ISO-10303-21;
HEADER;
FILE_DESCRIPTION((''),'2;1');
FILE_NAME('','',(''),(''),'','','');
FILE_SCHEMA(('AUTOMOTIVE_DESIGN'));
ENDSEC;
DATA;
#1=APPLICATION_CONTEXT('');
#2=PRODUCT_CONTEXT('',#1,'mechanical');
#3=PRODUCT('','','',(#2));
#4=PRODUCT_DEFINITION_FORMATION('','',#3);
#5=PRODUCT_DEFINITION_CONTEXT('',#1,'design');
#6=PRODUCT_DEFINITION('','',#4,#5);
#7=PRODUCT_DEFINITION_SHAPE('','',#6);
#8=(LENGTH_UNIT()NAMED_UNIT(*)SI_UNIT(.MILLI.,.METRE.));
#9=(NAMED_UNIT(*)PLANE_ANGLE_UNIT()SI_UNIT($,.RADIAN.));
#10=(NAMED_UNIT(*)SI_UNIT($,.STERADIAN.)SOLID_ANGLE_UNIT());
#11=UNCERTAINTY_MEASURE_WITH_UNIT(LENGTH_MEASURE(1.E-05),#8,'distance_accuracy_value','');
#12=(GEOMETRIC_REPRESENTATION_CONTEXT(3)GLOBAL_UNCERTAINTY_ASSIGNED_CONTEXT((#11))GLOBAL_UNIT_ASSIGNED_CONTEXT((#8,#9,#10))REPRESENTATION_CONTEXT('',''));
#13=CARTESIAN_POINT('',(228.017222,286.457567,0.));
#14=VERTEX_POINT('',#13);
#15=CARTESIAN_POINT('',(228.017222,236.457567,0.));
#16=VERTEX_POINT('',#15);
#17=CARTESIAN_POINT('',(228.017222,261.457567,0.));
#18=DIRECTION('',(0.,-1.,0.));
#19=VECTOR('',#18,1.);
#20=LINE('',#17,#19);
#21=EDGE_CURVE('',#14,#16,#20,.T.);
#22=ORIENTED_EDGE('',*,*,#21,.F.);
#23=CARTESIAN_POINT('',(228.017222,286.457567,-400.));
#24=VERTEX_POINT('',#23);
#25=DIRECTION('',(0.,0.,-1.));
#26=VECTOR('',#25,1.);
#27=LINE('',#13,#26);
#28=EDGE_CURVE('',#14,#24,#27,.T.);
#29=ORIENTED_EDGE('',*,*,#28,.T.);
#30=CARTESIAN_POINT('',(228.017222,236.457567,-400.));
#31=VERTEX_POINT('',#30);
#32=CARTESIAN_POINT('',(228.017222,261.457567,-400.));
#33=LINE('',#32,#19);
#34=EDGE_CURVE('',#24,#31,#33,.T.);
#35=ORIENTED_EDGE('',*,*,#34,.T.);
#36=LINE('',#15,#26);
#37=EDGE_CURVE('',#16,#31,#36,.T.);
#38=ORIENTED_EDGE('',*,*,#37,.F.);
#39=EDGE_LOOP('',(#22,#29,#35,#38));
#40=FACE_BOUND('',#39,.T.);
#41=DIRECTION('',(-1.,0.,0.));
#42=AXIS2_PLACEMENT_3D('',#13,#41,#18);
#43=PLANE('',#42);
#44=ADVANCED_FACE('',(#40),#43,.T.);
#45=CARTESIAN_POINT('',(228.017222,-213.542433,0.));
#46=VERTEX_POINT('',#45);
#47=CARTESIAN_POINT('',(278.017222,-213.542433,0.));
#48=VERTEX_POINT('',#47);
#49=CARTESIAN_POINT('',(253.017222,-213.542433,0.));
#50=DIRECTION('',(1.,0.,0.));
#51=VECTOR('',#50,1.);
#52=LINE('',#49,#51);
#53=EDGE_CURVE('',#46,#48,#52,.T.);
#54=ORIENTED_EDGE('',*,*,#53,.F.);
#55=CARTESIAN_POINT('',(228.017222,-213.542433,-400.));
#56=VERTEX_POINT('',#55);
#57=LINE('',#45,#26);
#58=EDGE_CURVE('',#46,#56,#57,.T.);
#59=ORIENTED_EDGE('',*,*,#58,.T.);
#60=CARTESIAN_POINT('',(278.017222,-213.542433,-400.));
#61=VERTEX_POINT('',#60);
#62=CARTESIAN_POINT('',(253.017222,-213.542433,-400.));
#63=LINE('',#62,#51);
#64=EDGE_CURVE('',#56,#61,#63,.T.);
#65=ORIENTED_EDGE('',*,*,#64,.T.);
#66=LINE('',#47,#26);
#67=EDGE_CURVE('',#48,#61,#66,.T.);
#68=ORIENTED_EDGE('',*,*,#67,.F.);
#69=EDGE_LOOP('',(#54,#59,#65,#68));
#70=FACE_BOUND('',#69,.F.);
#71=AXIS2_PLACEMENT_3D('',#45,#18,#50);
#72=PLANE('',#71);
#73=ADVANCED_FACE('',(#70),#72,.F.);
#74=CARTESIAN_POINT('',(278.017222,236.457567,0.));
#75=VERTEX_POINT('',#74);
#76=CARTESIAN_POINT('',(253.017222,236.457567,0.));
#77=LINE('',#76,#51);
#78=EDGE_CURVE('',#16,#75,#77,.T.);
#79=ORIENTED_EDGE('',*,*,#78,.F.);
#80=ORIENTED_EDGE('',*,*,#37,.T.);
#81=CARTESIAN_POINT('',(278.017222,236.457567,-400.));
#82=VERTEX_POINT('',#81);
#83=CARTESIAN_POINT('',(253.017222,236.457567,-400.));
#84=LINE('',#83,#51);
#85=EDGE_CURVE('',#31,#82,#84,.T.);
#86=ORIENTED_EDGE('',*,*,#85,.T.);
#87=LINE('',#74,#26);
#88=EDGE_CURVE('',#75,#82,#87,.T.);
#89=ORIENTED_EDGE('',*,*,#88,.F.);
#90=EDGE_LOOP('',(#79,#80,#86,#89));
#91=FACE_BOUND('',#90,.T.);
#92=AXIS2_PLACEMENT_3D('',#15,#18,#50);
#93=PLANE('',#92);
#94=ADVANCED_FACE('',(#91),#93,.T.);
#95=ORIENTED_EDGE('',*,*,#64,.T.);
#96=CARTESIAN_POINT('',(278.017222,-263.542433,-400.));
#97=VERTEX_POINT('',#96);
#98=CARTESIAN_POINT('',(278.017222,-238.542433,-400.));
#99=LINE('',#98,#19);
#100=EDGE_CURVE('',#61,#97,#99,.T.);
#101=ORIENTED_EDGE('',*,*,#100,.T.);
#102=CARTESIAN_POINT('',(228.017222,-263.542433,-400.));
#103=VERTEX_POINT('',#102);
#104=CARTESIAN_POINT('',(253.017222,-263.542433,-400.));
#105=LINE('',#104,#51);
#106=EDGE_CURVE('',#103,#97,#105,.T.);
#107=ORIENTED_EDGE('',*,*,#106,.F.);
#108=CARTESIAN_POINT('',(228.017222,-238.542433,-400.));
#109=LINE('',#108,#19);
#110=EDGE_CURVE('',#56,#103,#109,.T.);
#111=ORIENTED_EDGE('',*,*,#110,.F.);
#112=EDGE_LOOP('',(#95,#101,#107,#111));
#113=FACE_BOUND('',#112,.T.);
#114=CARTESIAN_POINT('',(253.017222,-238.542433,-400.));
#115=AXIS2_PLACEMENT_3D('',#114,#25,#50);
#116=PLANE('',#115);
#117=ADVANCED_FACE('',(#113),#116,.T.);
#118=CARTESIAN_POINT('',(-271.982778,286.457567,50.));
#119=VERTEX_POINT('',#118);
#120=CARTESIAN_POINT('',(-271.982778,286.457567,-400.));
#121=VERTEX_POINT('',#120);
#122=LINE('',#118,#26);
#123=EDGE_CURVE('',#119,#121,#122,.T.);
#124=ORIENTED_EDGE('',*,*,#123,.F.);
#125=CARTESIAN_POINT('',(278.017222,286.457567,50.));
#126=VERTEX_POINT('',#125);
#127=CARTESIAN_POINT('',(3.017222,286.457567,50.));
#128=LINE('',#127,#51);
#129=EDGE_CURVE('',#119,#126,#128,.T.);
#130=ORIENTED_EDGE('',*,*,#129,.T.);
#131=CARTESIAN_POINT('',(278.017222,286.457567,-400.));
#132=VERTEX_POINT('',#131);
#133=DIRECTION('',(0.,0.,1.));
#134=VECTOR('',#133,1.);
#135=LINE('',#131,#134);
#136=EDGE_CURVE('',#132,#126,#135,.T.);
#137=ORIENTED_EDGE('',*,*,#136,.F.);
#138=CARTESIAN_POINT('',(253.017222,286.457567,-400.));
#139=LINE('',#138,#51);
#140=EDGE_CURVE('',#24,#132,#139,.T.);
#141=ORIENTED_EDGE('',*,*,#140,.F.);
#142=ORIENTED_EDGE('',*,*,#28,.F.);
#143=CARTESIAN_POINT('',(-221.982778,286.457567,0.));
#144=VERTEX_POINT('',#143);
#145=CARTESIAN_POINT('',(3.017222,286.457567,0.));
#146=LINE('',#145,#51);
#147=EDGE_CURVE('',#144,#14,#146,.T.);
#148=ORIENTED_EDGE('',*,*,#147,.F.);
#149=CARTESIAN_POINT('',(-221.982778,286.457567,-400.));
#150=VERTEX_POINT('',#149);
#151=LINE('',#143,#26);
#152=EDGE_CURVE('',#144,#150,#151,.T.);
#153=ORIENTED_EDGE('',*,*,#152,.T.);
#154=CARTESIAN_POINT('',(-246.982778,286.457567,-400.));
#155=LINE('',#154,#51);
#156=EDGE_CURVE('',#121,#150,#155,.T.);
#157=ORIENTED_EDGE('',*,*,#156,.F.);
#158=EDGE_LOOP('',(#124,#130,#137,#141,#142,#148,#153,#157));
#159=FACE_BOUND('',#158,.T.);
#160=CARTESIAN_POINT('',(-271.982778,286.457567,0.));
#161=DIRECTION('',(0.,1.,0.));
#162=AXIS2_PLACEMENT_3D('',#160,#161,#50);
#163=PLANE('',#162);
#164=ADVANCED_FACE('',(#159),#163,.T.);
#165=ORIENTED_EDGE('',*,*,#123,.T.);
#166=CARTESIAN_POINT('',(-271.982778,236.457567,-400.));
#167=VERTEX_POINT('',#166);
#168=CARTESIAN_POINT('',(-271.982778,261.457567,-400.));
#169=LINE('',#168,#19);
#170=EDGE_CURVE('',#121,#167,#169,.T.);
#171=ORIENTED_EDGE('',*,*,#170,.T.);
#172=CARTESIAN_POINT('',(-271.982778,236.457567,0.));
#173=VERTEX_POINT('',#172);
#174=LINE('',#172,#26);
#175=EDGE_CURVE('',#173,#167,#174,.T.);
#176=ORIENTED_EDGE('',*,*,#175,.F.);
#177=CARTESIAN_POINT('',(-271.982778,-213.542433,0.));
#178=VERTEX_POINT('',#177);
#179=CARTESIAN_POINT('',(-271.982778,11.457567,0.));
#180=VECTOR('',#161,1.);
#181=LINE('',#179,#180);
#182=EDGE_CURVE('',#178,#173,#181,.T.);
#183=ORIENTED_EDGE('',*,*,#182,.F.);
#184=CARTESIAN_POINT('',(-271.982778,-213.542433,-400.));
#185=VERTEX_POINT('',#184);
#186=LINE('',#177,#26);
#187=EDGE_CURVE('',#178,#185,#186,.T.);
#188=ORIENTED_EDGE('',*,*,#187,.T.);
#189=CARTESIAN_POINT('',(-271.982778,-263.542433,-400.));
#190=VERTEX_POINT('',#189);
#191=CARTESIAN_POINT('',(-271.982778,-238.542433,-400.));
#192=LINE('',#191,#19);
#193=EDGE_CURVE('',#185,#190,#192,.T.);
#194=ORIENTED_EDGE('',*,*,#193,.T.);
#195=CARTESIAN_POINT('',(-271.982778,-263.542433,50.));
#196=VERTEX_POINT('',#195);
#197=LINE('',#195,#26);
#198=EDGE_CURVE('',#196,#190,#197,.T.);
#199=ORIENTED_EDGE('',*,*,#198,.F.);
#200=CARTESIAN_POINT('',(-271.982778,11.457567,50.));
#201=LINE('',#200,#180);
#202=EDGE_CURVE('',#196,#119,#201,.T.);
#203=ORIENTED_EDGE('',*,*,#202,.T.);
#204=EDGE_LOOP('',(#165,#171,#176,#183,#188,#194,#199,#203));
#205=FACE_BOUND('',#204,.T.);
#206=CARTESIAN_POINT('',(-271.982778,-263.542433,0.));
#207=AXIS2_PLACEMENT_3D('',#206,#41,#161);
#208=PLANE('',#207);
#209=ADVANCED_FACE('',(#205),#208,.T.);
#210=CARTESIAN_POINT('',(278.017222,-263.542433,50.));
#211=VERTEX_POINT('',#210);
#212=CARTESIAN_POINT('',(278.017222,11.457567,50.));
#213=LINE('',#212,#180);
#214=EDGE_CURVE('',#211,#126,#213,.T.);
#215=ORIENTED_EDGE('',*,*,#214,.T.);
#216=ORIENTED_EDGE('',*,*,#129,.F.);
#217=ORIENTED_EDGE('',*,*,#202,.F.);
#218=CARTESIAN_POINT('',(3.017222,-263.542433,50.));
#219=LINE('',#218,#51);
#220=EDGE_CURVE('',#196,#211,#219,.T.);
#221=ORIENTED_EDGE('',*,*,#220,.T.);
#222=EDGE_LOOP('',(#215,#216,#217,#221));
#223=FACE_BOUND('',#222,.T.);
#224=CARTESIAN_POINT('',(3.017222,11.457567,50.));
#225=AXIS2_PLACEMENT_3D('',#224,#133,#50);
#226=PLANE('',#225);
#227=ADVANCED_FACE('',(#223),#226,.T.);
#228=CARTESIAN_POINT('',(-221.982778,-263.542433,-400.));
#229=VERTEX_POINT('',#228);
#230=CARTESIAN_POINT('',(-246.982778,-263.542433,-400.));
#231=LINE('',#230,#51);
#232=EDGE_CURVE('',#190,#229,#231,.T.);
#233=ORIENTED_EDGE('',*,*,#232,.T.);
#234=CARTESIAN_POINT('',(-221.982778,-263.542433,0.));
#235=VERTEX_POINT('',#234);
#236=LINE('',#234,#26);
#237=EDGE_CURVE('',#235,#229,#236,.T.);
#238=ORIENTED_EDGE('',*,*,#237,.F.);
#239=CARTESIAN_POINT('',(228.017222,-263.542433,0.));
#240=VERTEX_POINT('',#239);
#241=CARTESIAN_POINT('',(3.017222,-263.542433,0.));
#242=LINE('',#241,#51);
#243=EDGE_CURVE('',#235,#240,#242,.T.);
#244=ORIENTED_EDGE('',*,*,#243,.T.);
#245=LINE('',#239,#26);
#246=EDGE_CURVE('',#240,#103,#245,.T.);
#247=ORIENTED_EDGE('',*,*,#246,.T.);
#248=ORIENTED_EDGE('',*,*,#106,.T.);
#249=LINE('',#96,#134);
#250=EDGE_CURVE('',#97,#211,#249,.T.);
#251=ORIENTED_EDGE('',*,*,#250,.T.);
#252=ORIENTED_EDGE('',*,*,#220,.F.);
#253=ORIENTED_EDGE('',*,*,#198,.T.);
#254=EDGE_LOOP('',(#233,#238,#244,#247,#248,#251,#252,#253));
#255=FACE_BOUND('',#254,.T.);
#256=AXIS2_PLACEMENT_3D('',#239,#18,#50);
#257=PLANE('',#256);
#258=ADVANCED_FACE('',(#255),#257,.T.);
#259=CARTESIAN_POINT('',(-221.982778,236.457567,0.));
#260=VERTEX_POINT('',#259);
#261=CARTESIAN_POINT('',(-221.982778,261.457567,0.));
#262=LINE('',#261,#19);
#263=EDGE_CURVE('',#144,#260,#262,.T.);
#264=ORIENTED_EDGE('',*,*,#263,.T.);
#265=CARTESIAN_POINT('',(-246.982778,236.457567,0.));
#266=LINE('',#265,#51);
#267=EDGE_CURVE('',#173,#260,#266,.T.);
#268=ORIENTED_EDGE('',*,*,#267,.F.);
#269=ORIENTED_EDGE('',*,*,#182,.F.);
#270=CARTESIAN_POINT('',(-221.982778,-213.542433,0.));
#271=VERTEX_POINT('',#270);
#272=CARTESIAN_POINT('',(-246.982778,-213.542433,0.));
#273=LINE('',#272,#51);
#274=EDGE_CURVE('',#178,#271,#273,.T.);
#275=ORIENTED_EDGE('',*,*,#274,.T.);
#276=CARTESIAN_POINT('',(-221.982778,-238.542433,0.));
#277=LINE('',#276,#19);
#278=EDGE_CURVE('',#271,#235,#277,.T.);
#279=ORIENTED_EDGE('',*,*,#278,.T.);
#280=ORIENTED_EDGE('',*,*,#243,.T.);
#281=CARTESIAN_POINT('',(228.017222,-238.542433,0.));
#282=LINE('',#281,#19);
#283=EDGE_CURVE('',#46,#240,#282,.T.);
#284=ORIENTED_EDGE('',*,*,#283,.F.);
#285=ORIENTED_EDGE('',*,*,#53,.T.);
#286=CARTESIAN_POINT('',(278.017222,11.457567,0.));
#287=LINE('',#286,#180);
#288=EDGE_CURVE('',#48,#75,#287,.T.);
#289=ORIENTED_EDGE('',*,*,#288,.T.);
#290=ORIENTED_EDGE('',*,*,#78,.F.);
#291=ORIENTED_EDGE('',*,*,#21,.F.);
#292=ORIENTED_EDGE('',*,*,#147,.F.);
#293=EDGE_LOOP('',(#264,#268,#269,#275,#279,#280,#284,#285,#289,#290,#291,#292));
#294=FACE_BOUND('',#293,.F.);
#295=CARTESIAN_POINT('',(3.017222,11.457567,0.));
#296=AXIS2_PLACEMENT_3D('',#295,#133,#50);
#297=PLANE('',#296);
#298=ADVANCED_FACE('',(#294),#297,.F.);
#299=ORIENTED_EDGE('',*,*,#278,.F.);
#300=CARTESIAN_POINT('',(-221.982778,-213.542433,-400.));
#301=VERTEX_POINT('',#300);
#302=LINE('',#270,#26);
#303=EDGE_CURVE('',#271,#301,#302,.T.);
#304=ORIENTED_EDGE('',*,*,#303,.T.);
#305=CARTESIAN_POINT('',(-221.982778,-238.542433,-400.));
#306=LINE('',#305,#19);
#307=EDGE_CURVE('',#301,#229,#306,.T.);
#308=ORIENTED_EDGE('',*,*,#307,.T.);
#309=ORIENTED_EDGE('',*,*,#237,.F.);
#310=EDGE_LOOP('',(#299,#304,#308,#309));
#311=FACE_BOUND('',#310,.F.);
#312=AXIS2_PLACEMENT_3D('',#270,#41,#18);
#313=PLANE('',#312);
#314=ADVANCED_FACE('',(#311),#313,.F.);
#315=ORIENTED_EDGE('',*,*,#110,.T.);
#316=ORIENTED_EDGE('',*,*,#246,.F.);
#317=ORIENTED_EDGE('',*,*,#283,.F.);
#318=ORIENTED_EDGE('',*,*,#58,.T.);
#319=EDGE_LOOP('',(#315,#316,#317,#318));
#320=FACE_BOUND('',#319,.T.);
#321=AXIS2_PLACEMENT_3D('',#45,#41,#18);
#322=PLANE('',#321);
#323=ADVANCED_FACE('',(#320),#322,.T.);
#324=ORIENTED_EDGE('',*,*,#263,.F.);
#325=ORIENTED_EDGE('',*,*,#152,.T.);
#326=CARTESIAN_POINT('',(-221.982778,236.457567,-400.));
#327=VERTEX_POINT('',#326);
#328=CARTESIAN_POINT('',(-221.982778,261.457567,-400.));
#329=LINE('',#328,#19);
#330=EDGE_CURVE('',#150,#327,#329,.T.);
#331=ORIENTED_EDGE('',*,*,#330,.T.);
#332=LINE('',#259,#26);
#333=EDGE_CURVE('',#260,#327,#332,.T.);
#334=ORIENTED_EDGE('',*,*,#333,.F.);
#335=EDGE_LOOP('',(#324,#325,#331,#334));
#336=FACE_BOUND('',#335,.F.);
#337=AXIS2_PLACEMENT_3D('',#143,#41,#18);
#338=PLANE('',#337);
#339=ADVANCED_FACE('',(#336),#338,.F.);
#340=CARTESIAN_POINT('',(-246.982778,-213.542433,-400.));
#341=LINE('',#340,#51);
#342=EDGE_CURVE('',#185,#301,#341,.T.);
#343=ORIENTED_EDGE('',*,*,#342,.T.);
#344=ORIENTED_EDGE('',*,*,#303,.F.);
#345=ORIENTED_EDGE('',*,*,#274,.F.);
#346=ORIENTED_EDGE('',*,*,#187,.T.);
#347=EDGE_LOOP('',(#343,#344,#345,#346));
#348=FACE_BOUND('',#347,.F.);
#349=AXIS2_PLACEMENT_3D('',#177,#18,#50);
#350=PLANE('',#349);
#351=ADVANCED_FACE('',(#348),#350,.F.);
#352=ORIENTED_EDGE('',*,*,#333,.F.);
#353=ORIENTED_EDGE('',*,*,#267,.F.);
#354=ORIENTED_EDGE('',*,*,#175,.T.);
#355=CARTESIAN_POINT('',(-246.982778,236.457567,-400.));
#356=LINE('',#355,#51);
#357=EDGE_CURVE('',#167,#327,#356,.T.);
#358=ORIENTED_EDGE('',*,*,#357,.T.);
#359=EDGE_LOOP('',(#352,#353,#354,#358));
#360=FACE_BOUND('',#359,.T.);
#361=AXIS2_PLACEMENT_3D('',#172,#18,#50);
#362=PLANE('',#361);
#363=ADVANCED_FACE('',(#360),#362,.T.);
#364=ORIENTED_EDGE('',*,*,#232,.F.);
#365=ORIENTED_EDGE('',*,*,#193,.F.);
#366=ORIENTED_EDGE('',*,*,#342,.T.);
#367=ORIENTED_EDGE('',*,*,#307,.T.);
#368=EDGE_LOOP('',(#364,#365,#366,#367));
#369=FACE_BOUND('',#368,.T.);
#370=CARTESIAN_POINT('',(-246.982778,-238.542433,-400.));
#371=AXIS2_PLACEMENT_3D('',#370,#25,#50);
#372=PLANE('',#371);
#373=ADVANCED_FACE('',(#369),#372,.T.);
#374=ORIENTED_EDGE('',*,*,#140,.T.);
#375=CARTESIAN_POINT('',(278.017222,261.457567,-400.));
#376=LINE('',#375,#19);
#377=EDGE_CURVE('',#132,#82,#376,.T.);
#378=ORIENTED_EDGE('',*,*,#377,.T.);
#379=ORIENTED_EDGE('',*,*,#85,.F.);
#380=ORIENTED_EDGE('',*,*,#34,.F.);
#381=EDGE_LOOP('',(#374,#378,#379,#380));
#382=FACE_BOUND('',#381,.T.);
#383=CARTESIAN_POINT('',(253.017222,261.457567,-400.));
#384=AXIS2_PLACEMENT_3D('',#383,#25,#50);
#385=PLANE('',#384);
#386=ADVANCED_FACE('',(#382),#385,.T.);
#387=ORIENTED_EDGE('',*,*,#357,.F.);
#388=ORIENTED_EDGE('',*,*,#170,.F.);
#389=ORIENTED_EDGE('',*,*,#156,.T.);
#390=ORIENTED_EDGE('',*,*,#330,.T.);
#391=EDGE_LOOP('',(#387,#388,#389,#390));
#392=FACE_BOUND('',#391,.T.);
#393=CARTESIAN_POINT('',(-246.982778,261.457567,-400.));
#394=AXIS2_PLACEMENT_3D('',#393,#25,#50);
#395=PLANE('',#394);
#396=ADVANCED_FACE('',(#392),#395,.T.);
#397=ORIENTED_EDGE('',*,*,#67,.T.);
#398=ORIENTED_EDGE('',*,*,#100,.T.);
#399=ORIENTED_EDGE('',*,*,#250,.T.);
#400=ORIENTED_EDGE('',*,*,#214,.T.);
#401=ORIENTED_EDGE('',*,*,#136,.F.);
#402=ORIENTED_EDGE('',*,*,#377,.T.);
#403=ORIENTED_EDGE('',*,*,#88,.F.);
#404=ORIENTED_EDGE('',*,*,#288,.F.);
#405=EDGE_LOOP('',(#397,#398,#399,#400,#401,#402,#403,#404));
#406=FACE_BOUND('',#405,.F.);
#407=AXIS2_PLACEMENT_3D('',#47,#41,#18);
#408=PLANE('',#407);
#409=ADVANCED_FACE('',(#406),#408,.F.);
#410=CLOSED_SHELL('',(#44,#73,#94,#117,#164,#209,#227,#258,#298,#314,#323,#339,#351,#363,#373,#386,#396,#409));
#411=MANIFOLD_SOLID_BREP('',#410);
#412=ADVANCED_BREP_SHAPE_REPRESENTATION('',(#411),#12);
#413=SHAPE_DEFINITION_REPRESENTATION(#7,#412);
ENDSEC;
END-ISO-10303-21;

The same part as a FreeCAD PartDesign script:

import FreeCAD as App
import Part
import Sketcher
Q = App.Units.Quantity


def add_polygon(sketch, points):
    """Adds a closed chain of lines whose ends are joined by coincident constraints."""
    first, n = sketch.GeometryCount, len(points)
    for a, b in zip(points, points[1:] + points[:1]):
        sketch.addGeometry(Part.LineSegment(App.Vector(*a, 0), App.Vector(*b, 0)), False)
    for i in range(n):
        sketch.addConstraint(Sketcher.Constraint("Coincident", first + i, 2, first + (i + 1) % n, 1))

doc = App.newDocument("Part")
body = doc.addObject("PartDesign::Body", "Body")

sketch1 = body.newObject("Sketcher::SketchObject", "Sketch")
sketch1.AttachmentSupport = (doc.getObject("XY_Plane"), [""])
sketch1.MapMode = "FlatFace"
add_polygon(sketch1, [(-272, 286), (-272, -264), (278, -264), (278, 286)])
sketch1.addConstraint([
    Sketcher.Constraint("Vertical", 0),
    Sketcher.Constraint("Horizontal", 1),
    Sketcher.Constraint("Vertical", 2),
    Sketcher.Constraint("Horizontal", 3),
    Sketcher.Constraint("Equal", 3, 0),
    Sketcher.Constraint("DistanceX", 1, 1, 1, 2, Q("550 mm")),
    Sketcher.Constraint("DistanceX", 0, 2, -1, 1, Q("271.982778 mm")),
    Sketcher.Constraint("DistanceY", 0, 2, -1, 1, Q("263.542433 mm")),
])
pad1 = body.newObject("PartDesign::Pad", "Pad")
pad1.Profile = sketch1
pad1.Length = 50

sketch2 = body.newObject("Sketcher::SketchObject", "Sketch001")
sketch2.AttachmentSupport = (doc.getObject("XY_Plane"), [""])
sketch2.MapMode = "FlatFace"
add_polygon(sketch2, [(228, -264), (228, -214), (278, -214), (278, -264)])
add_polygon(sketch2, [(-272, -264), (-272, -214), (-222, -214), (-222, -264)])
add_polygon(sketch2, [(-272, 236), (-272, 286), (-222, 286), (-222, 236)])
add_polygon(sketch2, [(228, 236), (228, 286), (278, 286), (278, 236)])
sketch2.addConstraint([
    Sketcher.Constraint("Vertical", 0),
    Sketcher.Constraint("Horizontal", 1),
    Sketcher.Constraint("Vertical", 2),
    Sketcher.Constraint("Horizontal", 3),
    Sketcher.Constraint("Vertical", 4),
    Sketcher.Constraint("Horizontal", 5),
    Sketcher.Constraint("Vertical", 6),
    Sketcher.Constraint("Horizontal", 7),
    Sketcher.Constraint("Vertical", 8),
    Sketcher.Constraint("Horizontal", 9),
    Sketcher.Constraint("Vertical", 10),
    Sketcher.Constraint("Horizontal", 11),
    Sketcher.Constraint("Vertical", 12),
    Sketcher.Constraint("Horizontal", 13),
    Sketcher.Constraint("Vertical", 14),
    Sketcher.Constraint("Horizontal", 15),
    Sketcher.Constraint("Horizontal", 1, 2, 4, 2),
    Sketcher.Constraint("Horizontal", 3, 2, 6, 2),
    Sketcher.Constraint("Horizontal", 9, 2, 12, 2),
    Sketcher.Constraint("Horizontal", 11, 2, 14, 2),
    Sketcher.Constraint("Vertical", 7, 2, 8, 2),
    Sketcher.Constraint("Vertical", 6, 2, 9, 2),
    Sketcher.Constraint("Vertical", 3, 2, 12, 2),
    Sketcher.Constraint("Vertical", 2, 2, 13, 2),
    Sketcher.Constraint("Equal", 3, 5),
    Sketcher.Constraint("Equal", 15, 0),
    Sketcher.Constraint("Equal", 6, 8),
    Sketcher.Constraint("DistanceX", 1, 1, 1, 2, Q("50 mm")),
    Sketcher.Constraint("DistanceX", 4, 2, 0, 2, Q("500 mm")),
    Sketcher.Constraint("DistanceY", 4, 2, 8, 2, Q("500 mm")),
    Sketcher.Constraint("DistanceX", -1, 1, 0, 2, Q("228.017222 mm")),
    Sketcher.Constraint("DistanceY", 0, 2, -1, 1, Q("213.542433 mm")),
])
pad2 = body.newObject("PartDesign::Pad", "Pad001")
pad2.Profile = sketch2
pad2.Length = 400
pad2.Reversed = True

doc.recompute()
